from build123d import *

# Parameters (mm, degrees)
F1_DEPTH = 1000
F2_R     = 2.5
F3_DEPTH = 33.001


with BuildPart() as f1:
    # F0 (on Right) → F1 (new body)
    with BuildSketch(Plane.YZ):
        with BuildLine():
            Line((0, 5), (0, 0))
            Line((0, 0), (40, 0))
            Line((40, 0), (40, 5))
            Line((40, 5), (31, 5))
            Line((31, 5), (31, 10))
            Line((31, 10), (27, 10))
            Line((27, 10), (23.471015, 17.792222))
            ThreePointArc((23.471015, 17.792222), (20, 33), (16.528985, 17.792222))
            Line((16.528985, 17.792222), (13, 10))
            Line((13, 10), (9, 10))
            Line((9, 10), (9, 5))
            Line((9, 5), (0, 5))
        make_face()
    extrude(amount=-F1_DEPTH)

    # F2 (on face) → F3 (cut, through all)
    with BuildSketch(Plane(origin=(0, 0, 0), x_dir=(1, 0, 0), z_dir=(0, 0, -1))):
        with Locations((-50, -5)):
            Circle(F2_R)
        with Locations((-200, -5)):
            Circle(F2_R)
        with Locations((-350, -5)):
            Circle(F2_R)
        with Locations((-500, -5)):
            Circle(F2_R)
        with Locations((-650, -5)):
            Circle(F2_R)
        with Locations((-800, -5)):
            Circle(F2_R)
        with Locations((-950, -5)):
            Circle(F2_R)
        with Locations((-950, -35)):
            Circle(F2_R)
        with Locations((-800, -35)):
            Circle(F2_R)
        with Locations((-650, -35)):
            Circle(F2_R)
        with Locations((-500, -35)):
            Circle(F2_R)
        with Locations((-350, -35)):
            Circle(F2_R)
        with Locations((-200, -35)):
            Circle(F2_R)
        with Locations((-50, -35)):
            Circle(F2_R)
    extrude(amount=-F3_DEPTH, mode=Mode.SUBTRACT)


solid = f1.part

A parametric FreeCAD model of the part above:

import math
import FreeCAD as App
import Part
import Sketcher
from FreeCAD import Vector

doc = App.newDocument("Part")
body = doc.addObject("PartDesign::Body", "Body")

sketch1 = body.newObject("Sketcher::SketchObject", "Sketch")
sketch1.AttachmentSupport = (doc.getObject("YZ_Plane"), [""])
sketch1.MapMode = "FlatFace"
sketch1.addGeometry(Part.LineSegment(Vector(0, 5, 0), Vector(0, 0, 0)), False)
sketch1.addGeometry(Part.LineSegment(Vector(0, 0, 0), Vector(40, 0, 0)), False)
sketch1.addGeometry(Part.LineSegment(Vector(40, 0, 0), Vector(40, 5, 0)), False)
sketch1.addGeometry(Part.LineSegment(Vector(40, 5, 0), Vector(31, 5, 0)), False)
sketch1.addGeometry(Part.LineSegment(Vector(31, 5, 0), Vector(31, 10, 0)), False)
sketch1.addGeometry(Part.LineSegment(Vector(31, 10, 0), Vector(27, 10, 0)), False)
sketch1.addGeometry(Part.LineSegment(Vector(27, 10, 0), Vector(23.471015, 17.792222, 0)), False)
sketch1.addGeometry(Part.ArcOfCircle(Part.Circle(Vector(20, 25, 0), Vector(0, 0, 1), 8), math.radians(-64.286152), math.radians(244.286152)), False)
sketch1.addGeometry(Part.LineSegment(Vector(16.528985, 17.792222, 0), Vector(13, 10, 0)), False)
sketch1.addGeometry(Part.LineSegment(Vector(13, 10, 0), Vector(9, 10, 0)), False)
sketch1.addGeometry(Part.LineSegment(Vector(9, 10, 0), Vector(9, 5, 0)), False)
sketch1.addGeometry(Part.LineSegment(Vector(9, 5, 0), Vector(0, 5, 0)), False)
sketch1.addConstraint(Sketcher.Constraint("Coincident", 0, 2, 1, 1))
sketch1.addConstraint(Sketcher.Constraint("Coincident", 1, 2, 2, 1))
sketch1.addConstraint(Sketcher.Constraint("Coincident", 2, 2, 3, 1))
sketch1.addConstraint(Sketcher.Constraint("Coincident", 3, 2, 4, 1))
sketch1.addConstraint(Sketcher.Constraint("Coincident", 4, 2, 5, 1))
sketch1.addConstraint(Sketcher.Constraint("Coincident", 5, 2, 6, 1))
sketch1.addConstraint(Sketcher.Constraint("Coincident", 6, 2, 7, 1))
sketch1.addConstraint(Sketcher.Constraint("Coincident", 7, 2, 8, 1))
sketch1.addConstraint(Sketcher.Constraint("Coincident", 8, 2, 9, 1))
sketch1.addConstraint(Sketcher.Constraint("Coincident", 9, 2, 10, 1))
sketch1.addConstraint(Sketcher.Constraint("Coincident", 10, 2, 11, 1))
sketch1.addConstraint(Sketcher.Constraint("Coincident", 11, 2, 0, 1))
sketch1.addConstraint(Sketcher.Constraint("Vertical", 0))
sketch1.addConstraint(Sketcher.Constraint("Horizontal", 1))
sketch1.addConstraint(Sketcher.Constraint("Vertical", 2))
sketch1.addConstraint(Sketcher.Constraint("Horizontal", 3))
sketch1.addConstraint(Sketcher.Constraint("Vertical", 4))
sketch1.addConstraint(Sketcher.Constraint("Horizontal", 5))
sketch1.addConstraint(Sketcher.Constraint("Horizontal", 9))
sketch1.addConstraint(Sketcher.Constraint("Vertical", 10))
sketch1.addConstraint(Sketcher.Constraint("Horizontal", 11))
sketch1.addConstraint(Sketcher.Constraint("Coincident", 0, 2, -1, 1))
sketch1.addConstraint(Sketcher.Constraint("Horizontal", 6, 2, 7, 2))
sketch1.addConstraint(Sketcher.Constraint("Horizontal", 5, 2, 8, 2))
sketch1.addConstraint(Sketcher.Constraint("Horizontal", 3, 2, 10, 2))
sketch1.addConstraint(Sketcher.Constraint("Equal", 5, 9))
sketch1.addConstraint(Sketcher.Constraint("Equal", 3, 11))
sketch1.addConstraint(Sketcher.Constraint("Equal", 2, 4))
sketch1.addConstraint(Sketcher.Constraint("Equal", 6, 8))
sketch1.addConstraint(Sketcher.Constraint("Radius", 7, 8.0))
sketch1.addConstraint(Sketcher.Constraint("DistanceX", 1, 1, 1, 2, 40.0))
sketch1.addConstraint(Sketcher.Constraint("DistanceX", 3, 2, 3, 1, 9.0))
sketch1.addConstraint(Sketcher.Constraint("DistanceX", 5, 2, 5, 1, 4.0))
sketch1.addConstraint(Sketcher.Constraint("DistanceY", 0, 2, 0, 1, 5.0))
sketch1.addConstraint(Sketcher.Constraint("DistanceY", -1, 1, 7, 3, 25.0))
sketch1.addConstraint(Sketcher.Constraint("Distance", 6, 8.55409))
pad1 = body.newObject("PartDesign::Pad", "Pad")
pad1.Profile = sketch1
pad1.Length = 1000
pad1.Reversed = True

sketch2 = body.newObject("Sketcher::SketchObject", "Sketch001")
sketch2.AttachmentSupport = (doc.getObject("XY_Plane"), [""])
sketch2.MapMode = "FlatFace"
sketch2.addGeometry(Part.Circle(Vector(-50, 5, 0), Vector(0, 0, 1), 2.5), False)
sketch2.addGeometry(Part.Circle(Vector(-200, 5, 0), Vector(0, 0, 1), 2.5), False)
sketch2.addGeometry(Part.Circle(Vector(-350, 5, 0), Vector(0, 0, 1), 2.5), False)
sketch2.addGeometry(Part.Circle(Vector(-500, 5, 0), Vector(0, 0, 1), 2.5), False)
sketch2.addGeometry(Part.Circle(Vector(-650, 5, 0), Vector(0, 0, 1), 2.5), False)
sketch2.addGeometry(Part.Circle(Vector(-800, 5, 0), Vector(0, 0, 1), 2.5), False)
sketch2.addGeometry(Part.Circle(Vector(-950, 5, 0), Vector(0, 0, 1), 2.5), False)
sketch2.addGeometry(Part.Circle(Vector(-950, 35, 0), Vector(0, 0, 1), 2.5), False)
sketch2.addGeometry(Part.Circle(Vector(-800, 35, 0), Vector(0, 0, 1), 2.5), False)
sketch2.addGeometry(Part.Circle(Vector(-650, 35, 0), Vector(0, 0, 1), 2.5), False)
sketch2.addGeometry(Part.Circle(Vector(-500, 35, 0), Vector(0, 0, 1), 2.5), False)
sketch2.addGeometry(Part.Circle(Vector(-350, 35, 0), Vector(0, 0, 1), 2.5), False)
sketch2.addGeometry(Part.Circle(Vector(-200, 35, 0), Vector(0, 0, 1), 2.5), False)
sketch2.addGeometry(Part.Circle(Vector(-50, 35, 0), Vector(0, 0, 1), 2.5), False)
sketch2.addConstraint(Sketcher.Constraint("Equal", 0, 1))
sketch2.addConstraint(Sketcher.Constraint("Equal", 1, 2))
sketch2.addConstraint(Sketcher.Constraint("Equal", 2, 3))
sketch2.addConstraint(Sketcher.Constraint("Equal", 3, 4))
sketch2.addConstraint(Sketcher.Constraint("Equal", 4, 5))
sketch2.addConstraint(Sketcher.Constraint("Equal", 5, 6))
sketch2.addConstraint(Sketcher.Constraint("Equal", 6, 7))
sketch2.addConstraint(Sketcher.Constraint("Equal", 7, 8))
sketch2.addConstraint(Sketcher.Constraint("Equal", 8, 9))
sketch2.addConstraint(Sketcher.Constraint("Equal", 9, 10))
sketch2.addConstraint(Sketcher.Constraint("Equal", 10, 11))
sketch2.addConstraint(Sketcher.Constraint("Equal", 11, 12))
sketch2.addConstraint(Sketcher.Constraint("Equal", 12, 13))
sketch2.addConstraint(Sketcher.Constraint("Horizontal", 0, 3, 1, 3))
sketch2.addConstraint(Sketcher.Constraint("Horizontal", 1, 3, 2, 3))
sketch2.addConstraint(Sketcher.Constraint("Horizontal", 2, 3, 3, 3))
sketch2.addConstraint(Sketcher.Constraint("Horizontal", 3, 3, 4, 3))
sketch2.addConstraint(Sketcher.Constraint("Horizontal", 4, 3, 5, 3))
sketch2.addConstraint(Sketcher.Constraint("Horizontal", 5, 3, 6, 3))
sketch2.addConstraint(Sketcher.Constraint("Horizontal", 7, 3, 8, 3))
sketch2.addConstraint(Sketcher.Constraint("Horizontal", 8, 3, 9, 3))
sketch2.addConstraint(Sketcher.Constraint("Horizontal", 9, 3, 10, 3))
sketch2.addConstraint(Sketcher.Constraint("Horizontal", 10, 3, 11, 3))
sketch2.addConstraint(Sketcher.Constraint("Horizontal", 11, 3, 12, 3))
sketch2.addConstraint(Sketcher.Constraint("Horizontal", 12, 3, 13, 3))
sketch2.addConstraint(Sketcher.Constraint("Vertical", 6, 3, 7, 3))
sketch2.addConstraint(Sketcher.Constraint("Vertical", 5, 3, 8, 3))
sketch2.addConstraint(Sketcher.Constraint("Vertical", 4, 3, 9, 3))
sketch2.addConstraint(Sketcher.Constraint("Vertical", 3, 3, 10, 3))
sketch2.addConstraint(Sketcher.Constraint("Vertical", 2, 3, 11, 3))
sketch2.addConstraint(Sketcher.Constraint("Vertical", 1, 3, 12, 3))
sketch2.addConstraint(Sketcher.Constraint("Vertical", 0, 3, 13, 3))
sketch2.addConstraint(Sketcher.Constraint("Diameter", 0, 5.0))
sketch2.addConstraint(Sketcher.Constraint("DistanceX", 0, 3, -1, 1, 50.0))
sketch2.addConstraint(Sketcher.Constraint("DistanceY", -1, 1, 0, 3, 5.0))
sketch2.addConstraint(Sketcher.Constraint("DistanceX", 1, 3, -1, 1, 200.0))
sketch2.addConstraint(Sketcher.Constraint("DistanceX", 2, 3, -1, 1, 350.0))
sketch2.addConstraint(Sketcher.Constraint("DistanceX", 3, 3, -1, 1, 500.0))
sketch2.addConstraint(Sketcher.Constraint("DistanceX", 4, 3, -1, 1, 650.0))
sketch2.addConstraint(Sketcher.Constraint("DistanceX", 5, 3, -1, 1, 800.0))
sketch2.addConstraint(Sketcher.Constraint("DistanceX", 6, 3, -1, 1, 950.0))
sketch2.addConstraint(Sketcher.Constraint("DistanceY", -1, 1, 7, 3, 35.0))
pocket1 = body.newObject("PartDesign::Pocket", "Pocket")
pocket1.Profile = sketch2
pocket1.Type = "ThroughAll"
pocket1.Reversed = True

doc.recompute()
